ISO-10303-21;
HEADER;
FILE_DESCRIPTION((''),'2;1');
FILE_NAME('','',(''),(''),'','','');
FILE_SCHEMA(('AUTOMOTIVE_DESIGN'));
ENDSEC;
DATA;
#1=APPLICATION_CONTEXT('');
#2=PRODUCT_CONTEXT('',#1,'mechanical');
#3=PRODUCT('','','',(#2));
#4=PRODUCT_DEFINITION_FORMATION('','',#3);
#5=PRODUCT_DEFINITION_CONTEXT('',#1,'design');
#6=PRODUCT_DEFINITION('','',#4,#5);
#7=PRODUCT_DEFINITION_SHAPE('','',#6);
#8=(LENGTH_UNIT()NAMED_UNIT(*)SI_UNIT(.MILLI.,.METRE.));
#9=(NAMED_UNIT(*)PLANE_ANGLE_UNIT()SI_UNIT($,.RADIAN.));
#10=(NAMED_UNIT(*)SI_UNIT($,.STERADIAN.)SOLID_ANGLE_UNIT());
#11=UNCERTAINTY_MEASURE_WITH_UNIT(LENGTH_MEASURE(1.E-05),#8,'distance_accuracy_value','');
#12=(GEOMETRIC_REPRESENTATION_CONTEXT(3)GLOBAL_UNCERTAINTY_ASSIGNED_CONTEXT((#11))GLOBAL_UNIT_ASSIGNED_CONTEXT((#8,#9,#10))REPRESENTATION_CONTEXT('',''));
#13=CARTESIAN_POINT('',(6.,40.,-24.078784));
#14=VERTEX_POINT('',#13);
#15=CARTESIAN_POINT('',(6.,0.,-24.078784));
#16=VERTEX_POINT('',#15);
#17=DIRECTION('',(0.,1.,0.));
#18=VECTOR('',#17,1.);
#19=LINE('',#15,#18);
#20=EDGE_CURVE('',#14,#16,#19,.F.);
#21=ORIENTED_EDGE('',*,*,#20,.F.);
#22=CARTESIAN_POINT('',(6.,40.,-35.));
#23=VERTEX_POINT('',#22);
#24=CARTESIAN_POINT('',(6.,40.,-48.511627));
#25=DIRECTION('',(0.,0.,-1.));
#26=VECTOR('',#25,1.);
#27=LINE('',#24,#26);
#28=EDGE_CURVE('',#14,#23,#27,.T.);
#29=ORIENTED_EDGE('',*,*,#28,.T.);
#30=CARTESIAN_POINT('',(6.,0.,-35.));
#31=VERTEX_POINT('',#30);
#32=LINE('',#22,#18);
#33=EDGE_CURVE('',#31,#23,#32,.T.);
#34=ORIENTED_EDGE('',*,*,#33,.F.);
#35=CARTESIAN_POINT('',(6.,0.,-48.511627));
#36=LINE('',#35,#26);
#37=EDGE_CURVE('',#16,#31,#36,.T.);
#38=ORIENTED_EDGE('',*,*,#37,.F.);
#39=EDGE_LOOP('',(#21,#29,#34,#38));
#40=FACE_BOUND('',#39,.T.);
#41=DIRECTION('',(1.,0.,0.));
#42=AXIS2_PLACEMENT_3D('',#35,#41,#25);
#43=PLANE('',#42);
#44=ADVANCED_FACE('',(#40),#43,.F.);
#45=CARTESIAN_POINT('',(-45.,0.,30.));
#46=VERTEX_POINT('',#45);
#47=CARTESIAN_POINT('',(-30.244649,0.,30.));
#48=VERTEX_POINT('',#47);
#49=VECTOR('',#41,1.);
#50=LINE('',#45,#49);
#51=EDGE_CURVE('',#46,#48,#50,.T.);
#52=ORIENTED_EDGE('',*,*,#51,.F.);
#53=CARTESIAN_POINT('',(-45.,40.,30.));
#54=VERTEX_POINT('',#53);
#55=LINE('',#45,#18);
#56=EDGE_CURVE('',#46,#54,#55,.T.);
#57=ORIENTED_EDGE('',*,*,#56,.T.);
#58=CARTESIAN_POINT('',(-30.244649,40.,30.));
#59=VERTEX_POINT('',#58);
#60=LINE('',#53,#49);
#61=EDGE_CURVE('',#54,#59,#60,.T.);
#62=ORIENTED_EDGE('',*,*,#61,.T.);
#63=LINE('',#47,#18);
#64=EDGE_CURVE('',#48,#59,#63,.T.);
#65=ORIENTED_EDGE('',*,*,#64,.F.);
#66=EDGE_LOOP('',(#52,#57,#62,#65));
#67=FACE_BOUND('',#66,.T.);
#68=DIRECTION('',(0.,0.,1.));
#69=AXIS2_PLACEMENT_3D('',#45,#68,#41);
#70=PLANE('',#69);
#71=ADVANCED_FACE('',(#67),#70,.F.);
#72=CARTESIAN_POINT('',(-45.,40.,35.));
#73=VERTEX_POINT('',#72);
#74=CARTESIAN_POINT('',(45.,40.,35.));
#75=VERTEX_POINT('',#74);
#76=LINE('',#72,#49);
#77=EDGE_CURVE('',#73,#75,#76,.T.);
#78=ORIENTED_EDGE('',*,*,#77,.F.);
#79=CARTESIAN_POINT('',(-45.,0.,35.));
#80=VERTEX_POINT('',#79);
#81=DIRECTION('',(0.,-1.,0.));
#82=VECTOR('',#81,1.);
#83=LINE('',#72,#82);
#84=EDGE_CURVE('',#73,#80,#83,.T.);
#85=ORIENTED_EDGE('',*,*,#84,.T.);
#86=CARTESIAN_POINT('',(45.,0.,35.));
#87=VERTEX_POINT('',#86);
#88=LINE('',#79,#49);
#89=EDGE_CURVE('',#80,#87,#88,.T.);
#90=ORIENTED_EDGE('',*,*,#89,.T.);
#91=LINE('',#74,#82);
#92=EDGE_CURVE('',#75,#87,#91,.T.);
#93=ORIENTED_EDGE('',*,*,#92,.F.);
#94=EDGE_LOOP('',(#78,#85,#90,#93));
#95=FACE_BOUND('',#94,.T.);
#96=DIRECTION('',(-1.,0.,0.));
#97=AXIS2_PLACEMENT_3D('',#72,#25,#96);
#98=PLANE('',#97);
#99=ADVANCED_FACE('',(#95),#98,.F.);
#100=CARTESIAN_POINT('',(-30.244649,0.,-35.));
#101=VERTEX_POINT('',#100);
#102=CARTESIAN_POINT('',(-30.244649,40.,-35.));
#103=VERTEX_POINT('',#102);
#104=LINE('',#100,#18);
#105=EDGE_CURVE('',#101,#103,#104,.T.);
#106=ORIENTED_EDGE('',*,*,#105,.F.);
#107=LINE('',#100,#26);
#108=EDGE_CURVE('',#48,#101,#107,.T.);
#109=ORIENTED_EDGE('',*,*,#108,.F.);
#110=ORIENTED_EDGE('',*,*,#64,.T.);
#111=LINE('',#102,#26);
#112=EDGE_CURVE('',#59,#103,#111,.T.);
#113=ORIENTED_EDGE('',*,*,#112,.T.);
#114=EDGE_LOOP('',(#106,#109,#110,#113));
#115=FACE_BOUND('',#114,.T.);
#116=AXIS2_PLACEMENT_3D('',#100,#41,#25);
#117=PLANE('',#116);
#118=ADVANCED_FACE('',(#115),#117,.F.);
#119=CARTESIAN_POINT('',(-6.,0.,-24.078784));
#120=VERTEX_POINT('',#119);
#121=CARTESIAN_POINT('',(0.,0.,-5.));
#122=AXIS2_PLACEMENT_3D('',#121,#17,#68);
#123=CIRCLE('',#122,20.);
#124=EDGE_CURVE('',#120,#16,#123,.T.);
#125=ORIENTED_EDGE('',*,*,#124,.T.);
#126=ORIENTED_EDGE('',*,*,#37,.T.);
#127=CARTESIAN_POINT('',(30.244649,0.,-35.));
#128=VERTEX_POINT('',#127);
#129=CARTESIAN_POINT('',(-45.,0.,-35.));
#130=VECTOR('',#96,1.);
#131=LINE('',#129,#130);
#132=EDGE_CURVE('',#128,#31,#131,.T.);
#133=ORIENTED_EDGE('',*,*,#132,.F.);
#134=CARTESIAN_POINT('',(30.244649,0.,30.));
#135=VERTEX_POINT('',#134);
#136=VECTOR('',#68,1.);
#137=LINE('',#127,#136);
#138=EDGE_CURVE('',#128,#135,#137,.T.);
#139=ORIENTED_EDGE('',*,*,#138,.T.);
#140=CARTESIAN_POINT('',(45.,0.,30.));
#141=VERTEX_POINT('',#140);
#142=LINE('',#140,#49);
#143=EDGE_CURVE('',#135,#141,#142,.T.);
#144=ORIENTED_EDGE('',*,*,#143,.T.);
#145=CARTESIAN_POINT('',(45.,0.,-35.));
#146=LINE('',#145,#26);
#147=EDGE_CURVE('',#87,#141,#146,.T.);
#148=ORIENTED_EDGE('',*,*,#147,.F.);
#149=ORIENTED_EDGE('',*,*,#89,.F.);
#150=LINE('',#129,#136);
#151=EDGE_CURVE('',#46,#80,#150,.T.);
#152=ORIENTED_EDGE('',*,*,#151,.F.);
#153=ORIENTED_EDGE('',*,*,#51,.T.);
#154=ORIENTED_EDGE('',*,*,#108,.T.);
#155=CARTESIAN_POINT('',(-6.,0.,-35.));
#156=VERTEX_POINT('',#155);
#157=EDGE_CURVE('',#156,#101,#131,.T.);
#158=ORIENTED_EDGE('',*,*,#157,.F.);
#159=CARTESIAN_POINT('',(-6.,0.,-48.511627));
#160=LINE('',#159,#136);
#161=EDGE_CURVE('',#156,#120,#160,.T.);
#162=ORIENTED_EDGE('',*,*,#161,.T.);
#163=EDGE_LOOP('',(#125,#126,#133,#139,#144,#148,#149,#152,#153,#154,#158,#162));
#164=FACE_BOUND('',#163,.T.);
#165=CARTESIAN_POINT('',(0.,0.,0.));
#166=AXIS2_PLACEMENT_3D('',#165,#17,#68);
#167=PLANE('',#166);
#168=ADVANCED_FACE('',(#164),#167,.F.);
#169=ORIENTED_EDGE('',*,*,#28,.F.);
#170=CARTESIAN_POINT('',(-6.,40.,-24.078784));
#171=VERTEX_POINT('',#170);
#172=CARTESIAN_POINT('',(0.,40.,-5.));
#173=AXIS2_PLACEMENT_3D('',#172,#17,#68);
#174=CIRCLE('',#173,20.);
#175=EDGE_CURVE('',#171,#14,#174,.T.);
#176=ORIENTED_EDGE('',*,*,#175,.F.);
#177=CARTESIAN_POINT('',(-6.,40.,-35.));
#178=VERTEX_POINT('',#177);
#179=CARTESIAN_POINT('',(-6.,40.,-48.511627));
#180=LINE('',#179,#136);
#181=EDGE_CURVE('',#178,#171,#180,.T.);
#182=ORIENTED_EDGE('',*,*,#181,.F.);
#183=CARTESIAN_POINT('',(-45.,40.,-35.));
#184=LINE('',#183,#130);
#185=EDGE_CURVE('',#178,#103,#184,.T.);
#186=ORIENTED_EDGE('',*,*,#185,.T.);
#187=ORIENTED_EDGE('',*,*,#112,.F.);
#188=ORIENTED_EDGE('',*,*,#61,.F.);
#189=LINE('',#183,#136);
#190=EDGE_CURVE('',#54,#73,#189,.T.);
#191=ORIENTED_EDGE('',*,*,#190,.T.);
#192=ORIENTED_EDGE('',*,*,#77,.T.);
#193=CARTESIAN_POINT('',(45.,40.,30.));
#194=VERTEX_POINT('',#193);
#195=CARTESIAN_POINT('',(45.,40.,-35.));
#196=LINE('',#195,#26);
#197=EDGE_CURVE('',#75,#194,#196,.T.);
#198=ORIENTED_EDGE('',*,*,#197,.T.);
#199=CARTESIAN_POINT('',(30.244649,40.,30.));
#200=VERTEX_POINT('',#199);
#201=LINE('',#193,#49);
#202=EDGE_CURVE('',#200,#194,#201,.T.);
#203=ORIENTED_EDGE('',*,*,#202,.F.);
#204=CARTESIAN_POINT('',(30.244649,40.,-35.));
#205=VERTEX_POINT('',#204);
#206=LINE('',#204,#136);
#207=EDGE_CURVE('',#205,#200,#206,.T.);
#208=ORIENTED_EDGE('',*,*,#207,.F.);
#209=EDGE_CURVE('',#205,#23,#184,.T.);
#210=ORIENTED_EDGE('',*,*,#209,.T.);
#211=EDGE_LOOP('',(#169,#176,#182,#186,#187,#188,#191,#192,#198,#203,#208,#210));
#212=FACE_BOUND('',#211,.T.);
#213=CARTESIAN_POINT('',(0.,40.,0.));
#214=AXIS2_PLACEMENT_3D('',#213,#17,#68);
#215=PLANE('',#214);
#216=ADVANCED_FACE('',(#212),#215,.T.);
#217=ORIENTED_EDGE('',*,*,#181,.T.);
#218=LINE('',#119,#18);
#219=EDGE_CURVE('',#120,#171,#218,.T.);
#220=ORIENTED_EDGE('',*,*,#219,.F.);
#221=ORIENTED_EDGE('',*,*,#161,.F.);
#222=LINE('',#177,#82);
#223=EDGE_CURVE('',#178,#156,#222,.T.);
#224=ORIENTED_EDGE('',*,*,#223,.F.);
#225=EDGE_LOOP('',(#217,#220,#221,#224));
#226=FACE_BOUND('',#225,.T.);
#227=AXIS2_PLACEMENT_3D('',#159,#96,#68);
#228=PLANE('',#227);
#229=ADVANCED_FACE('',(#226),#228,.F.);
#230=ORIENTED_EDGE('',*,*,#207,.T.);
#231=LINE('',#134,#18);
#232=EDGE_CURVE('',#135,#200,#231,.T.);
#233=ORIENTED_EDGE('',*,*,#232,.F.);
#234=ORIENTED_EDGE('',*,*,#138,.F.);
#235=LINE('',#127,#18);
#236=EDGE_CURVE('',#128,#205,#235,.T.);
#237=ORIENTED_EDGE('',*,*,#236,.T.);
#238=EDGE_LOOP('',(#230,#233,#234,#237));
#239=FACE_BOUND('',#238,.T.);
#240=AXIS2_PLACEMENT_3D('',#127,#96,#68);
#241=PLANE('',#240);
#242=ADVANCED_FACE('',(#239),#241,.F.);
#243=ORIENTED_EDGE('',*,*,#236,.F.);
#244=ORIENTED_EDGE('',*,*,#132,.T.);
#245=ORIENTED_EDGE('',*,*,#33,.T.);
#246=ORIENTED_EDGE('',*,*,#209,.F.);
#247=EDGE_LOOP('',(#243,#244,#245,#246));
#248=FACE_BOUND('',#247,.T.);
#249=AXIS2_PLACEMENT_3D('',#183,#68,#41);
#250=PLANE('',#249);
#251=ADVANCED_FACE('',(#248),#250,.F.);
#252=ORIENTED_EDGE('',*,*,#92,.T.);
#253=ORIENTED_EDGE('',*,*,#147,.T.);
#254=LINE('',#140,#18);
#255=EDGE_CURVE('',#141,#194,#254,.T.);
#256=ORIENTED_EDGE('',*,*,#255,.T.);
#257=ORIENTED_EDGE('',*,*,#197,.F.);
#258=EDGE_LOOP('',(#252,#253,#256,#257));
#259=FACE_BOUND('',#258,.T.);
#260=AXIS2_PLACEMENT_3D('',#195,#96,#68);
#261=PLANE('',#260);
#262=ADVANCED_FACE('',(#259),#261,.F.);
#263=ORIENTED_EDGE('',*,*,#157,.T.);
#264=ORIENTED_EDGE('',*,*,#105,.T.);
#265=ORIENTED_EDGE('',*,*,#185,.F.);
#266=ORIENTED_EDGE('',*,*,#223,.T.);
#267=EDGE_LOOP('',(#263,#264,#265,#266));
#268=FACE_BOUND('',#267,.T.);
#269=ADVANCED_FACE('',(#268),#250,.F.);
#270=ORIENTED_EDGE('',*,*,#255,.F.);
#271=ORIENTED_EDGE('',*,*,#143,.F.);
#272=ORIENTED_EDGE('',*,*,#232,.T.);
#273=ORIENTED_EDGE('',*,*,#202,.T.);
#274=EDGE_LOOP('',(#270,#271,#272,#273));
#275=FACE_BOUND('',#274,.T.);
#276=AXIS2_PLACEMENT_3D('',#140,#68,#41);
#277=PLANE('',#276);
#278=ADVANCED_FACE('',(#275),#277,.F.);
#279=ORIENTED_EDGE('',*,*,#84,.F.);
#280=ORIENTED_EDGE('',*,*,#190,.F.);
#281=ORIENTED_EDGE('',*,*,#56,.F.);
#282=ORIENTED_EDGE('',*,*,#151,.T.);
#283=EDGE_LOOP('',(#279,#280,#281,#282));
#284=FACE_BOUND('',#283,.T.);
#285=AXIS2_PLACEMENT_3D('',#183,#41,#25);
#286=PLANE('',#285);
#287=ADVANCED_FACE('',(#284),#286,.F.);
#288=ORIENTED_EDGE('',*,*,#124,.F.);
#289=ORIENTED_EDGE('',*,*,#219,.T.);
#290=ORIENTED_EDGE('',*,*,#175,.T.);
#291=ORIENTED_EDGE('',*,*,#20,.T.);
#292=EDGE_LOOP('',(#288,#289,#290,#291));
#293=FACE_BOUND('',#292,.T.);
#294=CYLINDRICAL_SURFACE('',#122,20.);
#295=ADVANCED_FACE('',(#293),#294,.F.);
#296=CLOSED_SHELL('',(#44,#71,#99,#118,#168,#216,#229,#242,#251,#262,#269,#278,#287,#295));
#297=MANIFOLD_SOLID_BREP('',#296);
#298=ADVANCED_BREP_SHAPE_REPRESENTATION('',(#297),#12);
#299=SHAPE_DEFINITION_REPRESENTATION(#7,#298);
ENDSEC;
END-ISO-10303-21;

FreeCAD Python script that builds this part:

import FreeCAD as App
import Part
import Sketcher

V = App.Vector


def add_polygon(sketch, points):
    """Adds a closed chain of lines whose ends are joined by coincident constraints."""
    first, n = sketch.GeometryCount, len(points)
    for a, b in zip(points, points[1:] + points[:1]):
        sketch.addGeometry(Part.LineSegment(App.Vector(*a, 0), App.Vector(*b, 0)), False)
    for i in range(n):
        sketch.addConstraint(Sketcher.Constraint("Coincident", first + i, 2, first + (i + 1) % n, 1))

doc = App.newDocument("Part")
body = doc.addObject("PartDesign::Body", "Body")

sketch1 = body.newObject("Sketcher::SketchObject", "Sketch")
sketch1.AttachmentSupport = (doc.getObject("XZ_Plane"), [""])
sketch1.MapMode = "FlatFace"
add_polygon(sketch1, [(-45, -35), (-45, 35), (45, 35), (45, -35)])
sketch1.addConstraint(Sketcher.Constraint("Vertical", 0))
sketch1.addConstraint(Sketcher.Constraint("Horizontal", 1))
sketch1.addConstraint(Sketcher.Constraint("Vertical", 2))
sketch1.addConstraint(Sketcher.Constraint("Horizontal", 3))
sketch1.addConstraint(Sketcher.Constraint("Symmetric", 0, 2, 2, 2, -1, 1))
sketch1.addConstraint(Sketcher.Constraint("DistanceX", 1, 1, 1, 2, 90.0))
sketch1.addConstraint(Sketcher.Constraint("DistanceY", 0, 1, 0, 2, 70.0))
pad1 = body.newObject("PartDesign::Pad", "Pad")
pad1.Profile = sketch1
pad1.Length = 40
pad1.Reversed = True

sketch2 = body.newObject("Sketcher::SketchObject", "Sketch001")
sketch2.AttachmentSupport = (doc.getObject("XZ_Plane"), [""])
sketch2.MapMode = "FlatFace"
sketch2.AttachmentOffset = App.Placement(V(0, 0, -40), App.Rotation())
sketch2.addGeometry(Part.Circle(V(0, -5, 0), V(0, 0, 1), 20), False)
sketch2.addConstraint(Sketcher.Constraint("PointOnObject", 0, 3, -2))
sketch2.addConstraint(Sketcher.Constraint("Diameter", 0, 40.0))
sketch2.addConstraint(Sketcher.Constraint("DistanceY", 0, 3, -1, 1, 5.0))
pocket1 = body.newObject("PartDesign::Pocket", "Pocket")
pocket1.Profile = sketch2
pocket1.Length = 40
pocket1.Reversed = True

sketch3 = body.newObject("Sketcher::SketchObject", "Sketch002")
sketch3.AttachmentSupport = (doc.getObject("XZ_Plane"), [""])
sketch3.MapMode = "FlatFace"
sketch3.AttachmentOffset = App.Placement(V(0, 0, -40), App.Rotation())
add_polygon(sketch3, [(-45, -35), (-45, 30), (-30, 30), (-30, -35)])
add_polygon(sketch3, [(30, -35), (30, 30), (45, 30), (45, -35)])
sketch3.addConstraint(Sketcher.Constraint("Vertical", 0))
sketch3.addConstraint(Sketcher.Constraint("Horizontal", 1))
sketch3.addConstraint(Sketcher.Constraint("Vertical", 2))
sketch3.addConstraint(Sketcher.Constraint("Horizontal", 3))
sketch3.addConstraint(Sketcher.Constraint("Vertical", 4))
sketch3.addConstraint(Sketcher.Constraint("Horizontal", 5))
sketch3.addConstraint(Sketcher.Constraint("Vertical", 6))
sketch3.addConstraint(Sketcher.Constraint("Horizontal", 7))
sketch3.addConstraint(Sketcher.Constraint("Symmetric", 1, 2, 4, 2, -2))
sketch3.addConstraint(Sketcher.Constraint("Symmetric", 3, 2, 6, 2, -2))
sketch3.addConstraint(Sketcher.Constraint("DistanceY", 0, 1, 0, 2, 65.0))
sketch3.addConstraint(Sketcher.Constraint("DistanceX", 0, 2, -1, 1, 45.0))
sketch3.addConstraint(Sketcher.Constraint("DistanceY", -1, 1, 0, 2, 30.0))
sketch3.addConstraint(Sketcher.Constraint("DistanceX", 1, 1, 1, 2, 14.755351))
pocket2 = body.newObject("PartDesign::Pocket", "Pocket001")
pocket2.Profile = sketch3
pocket2.Length = 40
pocket2.Reversed = True

sketch4 = body.newObject("Sketcher::SketchObject", "Sketch003")
sketch4.AttachmentSupport = (doc.getObject("XZ_Plane"), [""])
sketch4.MapMode = "FlatFace"
sketch4.AttachmentOffset = App.Placement(V(0, 0, -40), App.Rotation())
add_polygon(sketch4, [(-6, -49), (-6, -21), (6, -21), (6, -49)])
sketch4.addConstraint(Sketcher.Constraint("Vertical", 0))
sketch4.addConstraint(Sketcher.Constraint("Horizontal", 1))
sketch4.addConstraint(Sketcher.Constraint("Vertical", 2))
sketch4.addConstraint(Sketcher.Constraint("Horizontal", 3))
sketch4.addConstraint(Sketcher.Constraint("DistanceX", 1, 1, 1, 2, 12.0))
sketch4.addConstraint(Sketcher.Constraint("DistanceX", 0, 2, -1, 1, 6.0))
sketch4.addConstraint(Sketcher.Constraint("DistanceY", 0, 1, 0, 2, 27.023253))
sketch4.addConstraint(Sketcher.Constraint("DistanceY", 0, 2, -1, 1, 21.488373))
pocket3 = body.newObject("PartDesign::Pocket", "Pocket002")
pocket3.Profile = sketch4
pocket3.Length = 40
pocket3.Reversed = True

doc.recompute()
